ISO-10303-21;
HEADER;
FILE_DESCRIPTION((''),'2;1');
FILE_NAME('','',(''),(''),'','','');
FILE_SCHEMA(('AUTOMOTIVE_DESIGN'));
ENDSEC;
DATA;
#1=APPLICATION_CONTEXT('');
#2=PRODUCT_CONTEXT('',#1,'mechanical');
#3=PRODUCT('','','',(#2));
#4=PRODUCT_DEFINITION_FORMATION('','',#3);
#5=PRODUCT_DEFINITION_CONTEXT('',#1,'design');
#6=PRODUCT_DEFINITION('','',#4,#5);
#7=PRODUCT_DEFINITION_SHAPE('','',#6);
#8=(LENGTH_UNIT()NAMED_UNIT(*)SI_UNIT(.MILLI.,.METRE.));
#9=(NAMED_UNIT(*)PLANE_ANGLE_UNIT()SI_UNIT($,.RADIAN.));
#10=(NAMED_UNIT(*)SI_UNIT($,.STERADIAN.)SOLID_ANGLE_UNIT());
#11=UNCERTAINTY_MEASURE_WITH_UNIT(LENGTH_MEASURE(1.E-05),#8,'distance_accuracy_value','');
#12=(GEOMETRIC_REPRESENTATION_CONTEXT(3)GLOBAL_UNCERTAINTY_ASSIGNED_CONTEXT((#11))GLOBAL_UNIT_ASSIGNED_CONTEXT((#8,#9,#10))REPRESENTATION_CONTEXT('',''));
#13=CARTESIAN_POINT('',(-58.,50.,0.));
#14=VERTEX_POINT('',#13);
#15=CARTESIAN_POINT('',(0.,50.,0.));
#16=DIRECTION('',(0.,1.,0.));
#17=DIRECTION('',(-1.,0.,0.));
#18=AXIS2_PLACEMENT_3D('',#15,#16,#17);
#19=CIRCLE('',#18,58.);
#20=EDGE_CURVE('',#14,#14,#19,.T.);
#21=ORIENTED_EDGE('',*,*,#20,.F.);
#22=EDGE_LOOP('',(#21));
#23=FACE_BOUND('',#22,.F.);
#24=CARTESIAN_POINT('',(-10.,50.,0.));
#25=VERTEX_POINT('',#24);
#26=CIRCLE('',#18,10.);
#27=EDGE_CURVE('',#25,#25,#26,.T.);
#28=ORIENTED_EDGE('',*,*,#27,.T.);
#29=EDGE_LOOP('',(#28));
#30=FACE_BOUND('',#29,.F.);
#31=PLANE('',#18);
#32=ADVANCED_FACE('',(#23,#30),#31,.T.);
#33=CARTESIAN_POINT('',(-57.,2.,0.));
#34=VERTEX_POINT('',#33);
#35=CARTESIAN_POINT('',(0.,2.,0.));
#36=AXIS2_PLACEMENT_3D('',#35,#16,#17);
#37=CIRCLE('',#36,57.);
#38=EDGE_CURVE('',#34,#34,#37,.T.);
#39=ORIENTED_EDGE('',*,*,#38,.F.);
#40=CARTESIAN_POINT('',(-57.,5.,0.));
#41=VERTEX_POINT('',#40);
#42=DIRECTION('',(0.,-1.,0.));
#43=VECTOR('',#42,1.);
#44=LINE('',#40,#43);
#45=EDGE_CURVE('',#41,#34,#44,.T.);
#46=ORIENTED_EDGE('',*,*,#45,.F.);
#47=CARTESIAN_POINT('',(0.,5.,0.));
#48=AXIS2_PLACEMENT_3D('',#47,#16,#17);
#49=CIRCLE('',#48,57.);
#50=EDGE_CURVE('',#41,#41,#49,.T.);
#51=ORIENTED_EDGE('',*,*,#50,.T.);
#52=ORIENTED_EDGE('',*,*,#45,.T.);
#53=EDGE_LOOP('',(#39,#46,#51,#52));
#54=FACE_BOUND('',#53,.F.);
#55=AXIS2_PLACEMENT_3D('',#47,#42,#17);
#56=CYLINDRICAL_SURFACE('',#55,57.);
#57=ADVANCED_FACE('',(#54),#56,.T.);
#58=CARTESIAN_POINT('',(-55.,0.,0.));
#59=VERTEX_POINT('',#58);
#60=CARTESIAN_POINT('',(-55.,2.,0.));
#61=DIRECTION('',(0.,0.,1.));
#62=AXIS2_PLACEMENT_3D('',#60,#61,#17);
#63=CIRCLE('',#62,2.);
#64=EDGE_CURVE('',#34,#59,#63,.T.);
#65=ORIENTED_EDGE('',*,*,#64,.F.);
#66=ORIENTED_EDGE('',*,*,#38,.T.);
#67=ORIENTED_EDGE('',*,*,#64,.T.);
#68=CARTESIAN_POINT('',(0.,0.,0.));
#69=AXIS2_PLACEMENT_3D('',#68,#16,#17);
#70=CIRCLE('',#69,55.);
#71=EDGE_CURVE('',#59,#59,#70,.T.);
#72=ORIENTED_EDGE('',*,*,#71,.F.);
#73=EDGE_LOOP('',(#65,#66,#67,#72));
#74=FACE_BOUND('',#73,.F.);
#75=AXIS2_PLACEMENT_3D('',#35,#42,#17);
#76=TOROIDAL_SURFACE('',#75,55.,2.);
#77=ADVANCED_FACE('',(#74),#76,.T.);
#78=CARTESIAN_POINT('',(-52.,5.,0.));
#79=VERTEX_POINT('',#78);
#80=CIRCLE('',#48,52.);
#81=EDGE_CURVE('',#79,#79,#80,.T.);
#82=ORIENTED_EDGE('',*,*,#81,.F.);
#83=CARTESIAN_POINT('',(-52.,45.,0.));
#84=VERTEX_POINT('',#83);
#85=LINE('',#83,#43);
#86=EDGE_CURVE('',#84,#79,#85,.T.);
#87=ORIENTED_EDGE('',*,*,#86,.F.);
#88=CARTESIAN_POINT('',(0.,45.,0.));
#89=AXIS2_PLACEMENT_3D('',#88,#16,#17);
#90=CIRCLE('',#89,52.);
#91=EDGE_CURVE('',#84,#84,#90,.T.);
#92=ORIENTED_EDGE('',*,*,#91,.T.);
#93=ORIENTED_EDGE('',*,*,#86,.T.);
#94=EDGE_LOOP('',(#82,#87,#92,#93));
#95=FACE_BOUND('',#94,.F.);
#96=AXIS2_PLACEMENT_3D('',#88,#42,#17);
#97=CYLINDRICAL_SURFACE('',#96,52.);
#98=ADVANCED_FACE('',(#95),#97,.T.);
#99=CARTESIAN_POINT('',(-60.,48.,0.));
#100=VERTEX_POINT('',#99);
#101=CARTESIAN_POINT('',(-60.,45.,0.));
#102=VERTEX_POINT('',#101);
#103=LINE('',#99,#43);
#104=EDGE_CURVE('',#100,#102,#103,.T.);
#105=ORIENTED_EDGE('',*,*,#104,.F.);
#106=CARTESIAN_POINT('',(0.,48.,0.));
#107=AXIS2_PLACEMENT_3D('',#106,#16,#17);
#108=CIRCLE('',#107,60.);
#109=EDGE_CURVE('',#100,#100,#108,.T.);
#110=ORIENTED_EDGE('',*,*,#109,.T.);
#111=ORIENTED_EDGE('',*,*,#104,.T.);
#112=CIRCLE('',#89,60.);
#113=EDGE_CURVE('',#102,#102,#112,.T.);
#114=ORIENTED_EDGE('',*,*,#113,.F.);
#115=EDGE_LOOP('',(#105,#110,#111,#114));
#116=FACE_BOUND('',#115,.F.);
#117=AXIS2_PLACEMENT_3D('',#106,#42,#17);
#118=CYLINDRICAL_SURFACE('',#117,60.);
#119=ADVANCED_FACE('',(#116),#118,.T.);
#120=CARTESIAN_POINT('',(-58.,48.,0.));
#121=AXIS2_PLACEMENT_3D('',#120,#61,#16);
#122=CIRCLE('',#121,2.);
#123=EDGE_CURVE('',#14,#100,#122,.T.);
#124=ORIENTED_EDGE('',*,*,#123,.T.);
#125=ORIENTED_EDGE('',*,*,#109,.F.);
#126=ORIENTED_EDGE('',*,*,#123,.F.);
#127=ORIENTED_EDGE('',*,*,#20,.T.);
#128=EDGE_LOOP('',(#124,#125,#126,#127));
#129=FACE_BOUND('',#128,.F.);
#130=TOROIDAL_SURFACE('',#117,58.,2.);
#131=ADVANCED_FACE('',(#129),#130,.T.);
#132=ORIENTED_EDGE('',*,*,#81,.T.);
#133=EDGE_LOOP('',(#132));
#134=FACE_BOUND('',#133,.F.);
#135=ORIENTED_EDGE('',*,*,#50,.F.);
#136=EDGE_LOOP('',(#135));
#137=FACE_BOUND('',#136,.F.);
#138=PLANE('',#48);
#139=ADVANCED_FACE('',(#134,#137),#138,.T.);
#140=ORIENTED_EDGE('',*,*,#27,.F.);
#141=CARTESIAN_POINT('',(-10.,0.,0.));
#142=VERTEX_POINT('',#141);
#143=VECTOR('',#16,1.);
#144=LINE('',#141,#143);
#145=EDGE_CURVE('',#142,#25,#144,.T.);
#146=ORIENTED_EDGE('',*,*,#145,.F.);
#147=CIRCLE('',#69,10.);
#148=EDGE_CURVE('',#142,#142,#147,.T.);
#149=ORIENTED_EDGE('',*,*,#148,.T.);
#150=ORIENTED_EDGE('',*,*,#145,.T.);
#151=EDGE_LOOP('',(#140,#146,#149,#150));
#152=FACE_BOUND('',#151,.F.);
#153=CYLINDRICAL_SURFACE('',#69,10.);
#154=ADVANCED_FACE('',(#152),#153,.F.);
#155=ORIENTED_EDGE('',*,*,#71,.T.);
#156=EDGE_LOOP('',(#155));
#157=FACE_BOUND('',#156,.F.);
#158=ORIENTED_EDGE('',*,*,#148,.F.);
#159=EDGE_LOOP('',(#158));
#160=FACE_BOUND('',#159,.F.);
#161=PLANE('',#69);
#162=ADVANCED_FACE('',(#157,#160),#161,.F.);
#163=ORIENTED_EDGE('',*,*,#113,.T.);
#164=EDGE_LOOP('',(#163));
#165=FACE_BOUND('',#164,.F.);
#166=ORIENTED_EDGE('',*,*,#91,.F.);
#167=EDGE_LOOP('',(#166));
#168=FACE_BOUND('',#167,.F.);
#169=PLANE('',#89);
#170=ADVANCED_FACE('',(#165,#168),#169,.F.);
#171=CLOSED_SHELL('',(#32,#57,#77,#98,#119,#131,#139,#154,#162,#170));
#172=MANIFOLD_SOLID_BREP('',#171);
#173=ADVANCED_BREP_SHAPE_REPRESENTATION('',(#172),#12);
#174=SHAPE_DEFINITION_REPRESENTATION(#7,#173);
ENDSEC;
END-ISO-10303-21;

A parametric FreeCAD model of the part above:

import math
import FreeCAD as App
import Part
import Sketcher
from FreeCAD import Vector

doc = App.newDocument("Part")
body = doc.addObject("PartDesign::Body", "Body")

sketch1 = body.newObject("Sketcher::SketchObject", "Sketch")
sketch1.AttachmentSupport = (doc.getObject("XY_Plane"), [""])
sketch1.MapMode = "FlatFace"
sketch1.addGeometry(Part.LineSegment(Vector(-10, 0, 0), Vector(-10, 50, 0)), False)
sketch1.addGeometry(Part.LineSegment(Vector(-10, 50, 0), Vector(-58, 50, 0)), False)
sketch1.addGeometry(Part.ArcOfCircle(Part.Circle(Vector(-58, 48, 0), Vector(0, 0, 1), 2), math.radians(90), math.radians(180)), False)
sketch1.addGeometry(Part.LineSegment(Vector(-60, 48, 0), Vector(-60, 45, 0)), False)
sketch1.addGeometry(Part.LineSegment(Vector(-60, 45, 0), Vector(-52, 45, 0)), False)
sketch1.addGeometry(Part.LineSegment(Vector(-52, 45, 0), Vector(-52, 5, 0)), False)
sketch1.addGeometry(Part.LineSegment(Vector(-52, 5, 0), Vector(-57, 5, 0)), False)
sketch1.addGeometry(Part.LineSegment(Vector(-57, 5, 0), Vector(-57, 2, 0)), False)
sketch1.addGeometry(Part.ArcOfCircle(Part.Circle(Vector(-55, 2, 0), Vector(0, 0, 1), 2), math.radians(180), math.radians(270)), False)
sketch1.addGeometry(Part.LineSegment(Vector(-55, 0, 0), Vector(-10, 0, 0)), False)
sketch1.addConstraint(Sketcher.Constraint("Coincident", 0, 2, 1, 1))
sketch1.addConstraint(Sketcher.Constraint("Tangent", 1, 2, 2, 1))
sketch1.addConstraint(Sketcher.Constraint("Tangent", 2, 2, 3, 1))
sketch1.addConstraint(Sketcher.Constraint("Coincident", 3, 2, 4, 1))
sketch1.addConstraint(Sketcher.Constraint("Coincident", 4, 2, 5, 1))
sketch1.addConstraint(Sketcher.Constraint("Coincident", 5, 2, 6, 1))
sketch1.addConstraint(Sketcher.Constraint("Coincident", 6, 2, 7, 1))
sketch1.addConstraint(Sketcher.Constraint("Tangent", 7, 2, 8, 1))
sketch1.addConstraint(Sketcher.Constraint("Tangent", 8, 2, 9, 1))
sketch1.addConstraint(Sketcher.Constraint("Coincident", 9, 2, 0, 1))
sketch1.addConstraint(Sketcher.Constraint("Vertical", 0))
sketch1.addConstraint(Sketcher.Constraint("Horizontal", 1))
sketch1.addConstraint(Sketcher.Constraint("Vertical", 3))
sketch1.addConstraint(Sketcher.Constraint("Horizontal", 4))
sketch1.addConstraint(Sketcher.Constraint("Vertical", 5))
sketch1.addConstraint(Sketcher.Constraint("Horizontal", 6))
sketch1.addConstraint(Sketcher.Constraint("Vertical", 7))
sketch1.addConstraint(Sketcher.Constraint("Horizontal", 9))
sketch1.addConstraint(Sketcher.Constraint("Equal", 2, 8))
sketch1.addConstraint(Sketcher.Constraint("PointOnObject", 8, 2, -1))
sketch1.addConstraint(Sketcher.Constraint("Equal", 3, 7))
sketch1.addConstraint(Sketcher.Constraint("Radius", 2, 2.0))
sketch1.addConstraint(Sketcher.Constraint("DistanceX", 4, 1, 4, 2, 8.0))
sketch1.addConstraint(Sketcher.Constraint("DistanceX", 6, 2, 6, 1, 5.0))
sketch1.addConstraint(Sketcher.Constraint("DistanceY", 0, 1, 0, 2, 50.0))
sketch1.addConstraint(Sketcher.Constraint("DistanceY", 5, 2, 5, 1, 40.0))
sketch1.addConstraint(Sketcher.Constraint("DistanceX", 0, 2, -1, 1, 10.0))
sketch1.addConstraint(Sketcher.Constraint("DistanceX", 2, 2, 0, 2, 50.0))
revolution = body.newObject("PartDesign::Revolution", "Revolution")
revolution.Profile = sketch1
revolution.ReferenceAxis = (sketch1, ["V_Axis"])
revolution.Angle = 360

doc.recompute()
